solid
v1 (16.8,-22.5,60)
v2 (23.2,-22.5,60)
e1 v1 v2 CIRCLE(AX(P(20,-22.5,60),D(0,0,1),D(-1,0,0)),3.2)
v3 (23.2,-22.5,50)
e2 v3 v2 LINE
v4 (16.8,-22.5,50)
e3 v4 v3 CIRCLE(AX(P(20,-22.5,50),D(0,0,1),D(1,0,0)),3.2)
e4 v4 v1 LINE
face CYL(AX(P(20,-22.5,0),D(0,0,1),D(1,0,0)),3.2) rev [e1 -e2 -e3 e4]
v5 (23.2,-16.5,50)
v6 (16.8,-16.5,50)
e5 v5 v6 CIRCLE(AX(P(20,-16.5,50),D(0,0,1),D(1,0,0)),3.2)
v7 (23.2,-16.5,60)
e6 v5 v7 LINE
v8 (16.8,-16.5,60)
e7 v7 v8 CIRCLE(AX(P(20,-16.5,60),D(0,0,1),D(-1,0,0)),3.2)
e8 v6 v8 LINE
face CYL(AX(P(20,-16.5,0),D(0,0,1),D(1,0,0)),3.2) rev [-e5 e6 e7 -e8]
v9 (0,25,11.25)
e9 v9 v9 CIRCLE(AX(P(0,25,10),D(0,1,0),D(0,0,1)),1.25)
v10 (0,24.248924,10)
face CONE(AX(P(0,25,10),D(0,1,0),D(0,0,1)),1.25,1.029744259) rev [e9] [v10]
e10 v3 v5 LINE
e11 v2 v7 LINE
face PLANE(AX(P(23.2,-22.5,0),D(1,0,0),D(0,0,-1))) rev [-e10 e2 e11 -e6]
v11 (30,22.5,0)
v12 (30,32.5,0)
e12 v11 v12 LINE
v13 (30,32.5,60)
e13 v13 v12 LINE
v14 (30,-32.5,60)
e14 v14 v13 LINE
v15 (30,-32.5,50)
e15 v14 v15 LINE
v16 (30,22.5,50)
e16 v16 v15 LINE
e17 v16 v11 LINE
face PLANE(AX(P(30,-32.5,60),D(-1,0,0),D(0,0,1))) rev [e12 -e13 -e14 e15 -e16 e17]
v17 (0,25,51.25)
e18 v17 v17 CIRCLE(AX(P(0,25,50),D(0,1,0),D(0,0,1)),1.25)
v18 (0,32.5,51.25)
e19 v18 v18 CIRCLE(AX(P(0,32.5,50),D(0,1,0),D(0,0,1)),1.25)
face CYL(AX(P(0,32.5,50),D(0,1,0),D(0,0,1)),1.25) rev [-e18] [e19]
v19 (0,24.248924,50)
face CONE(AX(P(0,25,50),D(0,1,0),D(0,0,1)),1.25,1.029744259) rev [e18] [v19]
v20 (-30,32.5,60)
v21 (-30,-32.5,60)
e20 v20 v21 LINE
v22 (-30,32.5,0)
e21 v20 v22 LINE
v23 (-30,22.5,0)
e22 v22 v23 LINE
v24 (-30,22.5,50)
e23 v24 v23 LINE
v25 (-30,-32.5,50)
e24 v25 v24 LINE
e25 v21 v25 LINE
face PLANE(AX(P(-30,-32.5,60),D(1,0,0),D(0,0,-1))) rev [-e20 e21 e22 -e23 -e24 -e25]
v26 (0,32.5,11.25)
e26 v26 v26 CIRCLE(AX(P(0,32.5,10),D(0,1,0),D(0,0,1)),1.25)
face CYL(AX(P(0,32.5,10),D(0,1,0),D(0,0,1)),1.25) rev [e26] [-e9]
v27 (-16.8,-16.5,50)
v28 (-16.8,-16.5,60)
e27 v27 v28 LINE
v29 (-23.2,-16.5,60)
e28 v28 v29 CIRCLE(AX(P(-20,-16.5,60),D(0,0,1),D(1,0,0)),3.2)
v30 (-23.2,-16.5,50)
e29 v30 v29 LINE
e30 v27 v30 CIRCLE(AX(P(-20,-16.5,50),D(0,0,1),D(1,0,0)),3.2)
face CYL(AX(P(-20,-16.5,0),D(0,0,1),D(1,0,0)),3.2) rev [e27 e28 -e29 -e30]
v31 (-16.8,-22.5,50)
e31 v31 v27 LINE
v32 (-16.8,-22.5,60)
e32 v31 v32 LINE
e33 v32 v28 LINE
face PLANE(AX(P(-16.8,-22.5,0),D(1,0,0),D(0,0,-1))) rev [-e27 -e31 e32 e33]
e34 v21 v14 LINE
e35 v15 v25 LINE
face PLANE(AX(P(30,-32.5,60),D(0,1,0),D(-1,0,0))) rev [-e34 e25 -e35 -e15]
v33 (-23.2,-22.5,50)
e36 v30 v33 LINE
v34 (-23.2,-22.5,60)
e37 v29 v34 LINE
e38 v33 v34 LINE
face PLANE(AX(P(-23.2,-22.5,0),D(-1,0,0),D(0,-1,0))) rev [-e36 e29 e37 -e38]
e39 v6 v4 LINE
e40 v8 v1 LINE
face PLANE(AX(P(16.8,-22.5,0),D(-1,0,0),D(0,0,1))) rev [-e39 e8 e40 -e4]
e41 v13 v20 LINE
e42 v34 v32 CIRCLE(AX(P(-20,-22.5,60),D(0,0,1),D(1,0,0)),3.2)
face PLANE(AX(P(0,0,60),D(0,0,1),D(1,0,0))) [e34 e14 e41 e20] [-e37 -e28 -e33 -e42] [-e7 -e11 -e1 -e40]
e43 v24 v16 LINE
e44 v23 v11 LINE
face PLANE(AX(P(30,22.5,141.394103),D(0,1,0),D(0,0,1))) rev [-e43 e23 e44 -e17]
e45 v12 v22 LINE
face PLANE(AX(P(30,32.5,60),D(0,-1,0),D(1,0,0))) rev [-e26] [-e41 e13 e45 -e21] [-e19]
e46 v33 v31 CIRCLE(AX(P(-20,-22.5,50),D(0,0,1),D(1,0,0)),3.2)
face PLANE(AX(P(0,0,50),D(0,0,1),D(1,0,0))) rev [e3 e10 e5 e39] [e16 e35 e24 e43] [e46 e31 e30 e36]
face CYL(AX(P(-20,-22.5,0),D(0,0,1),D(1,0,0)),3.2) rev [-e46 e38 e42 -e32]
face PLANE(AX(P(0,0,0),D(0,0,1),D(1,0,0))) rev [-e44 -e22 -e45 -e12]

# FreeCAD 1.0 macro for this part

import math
import FreeCAD as App
import Part
import Sketcher
from FreeCAD import Vector

doc = App.newDocument("Part")
params = doc.addObject("Spreadsheet::Sheet", "Params")
for row, (alias, value) in enumerate([
    ("sketch1_width", "60 mm"),
    ("sketch1_height", "65 mm"),
    ("pad1_length", "60 mm"),
    ("sketch2_width", "60 mm"),
    ("sketch2_height", "55 mm"),
    ("pocket1_length", "50 mm"),
    ("sketch3_radius", "3.2 mm"),
    ("sketch3_height", "6 mm"),
    ("sketch4_diameter", "2.5 mm"),
    ("hole_diameter", "2.5 mm"),
    ("hole_depth", "7.5 mm"),
], start=1):
    params.set(f"A{row}", alias)
    params.set(f"B{row}", "=" + value)
    params.setAlias(f"B{row}", alias)

body = doc.addObject("PartDesign::Body", "Body")

# Sketch on XY plane
sketch1 = body.newObject("Sketcher::SketchObject", "Sketch")
sketch1.AttachmentSupport = (doc.getObject("XY_Plane"), [""])
sketch1.MapMode = "FlatFace"
sketch1.addGeometry([
    Part.LineSegment(Vector(-30, 32, 0), Vector(-30, -32, 0)),
    Part.LineSegment(Vector(-30, -32, 0), Vector(30, -32, 0)),
    Part.LineSegment(Vector(30, -32, 0), Vector(30, 32, 0)),
    Part.LineSegment(Vector(30, 32, 0), Vector(-30, 32, 0)),
], False)
sketch1.addConstraint([
    Sketcher.Constraint("Coincident", 0, 2, 1, 1),
    Sketcher.Constraint("Coincident", 1, 2, 2, 1),
    Sketcher.Constraint("Coincident", 2, 2, 3, 1),
    Sketcher.Constraint("Coincident", 3, 2, 0, 1),
    Sketcher.Constraint("Vertical", 0),
    Sketcher.Constraint("Horizontal", 1),
    Sketcher.Constraint("Vertical", 2),
    Sketcher.Constraint("Horizontal", 3),
    Sketcher.Constraint("Symmetric", 0, 2, 2, 2, -1, 1),
    Sketcher.Constraint("DistanceX", 1, 1, 1, 2, 60.0),
    Sketcher.Constraint("DistanceY", 0, 2, 0, 1, 65.0),
])
sketch1.setExpression("Constraints[9]", "Params.sketch1_width")
sketch1.setExpression("Constraints[10]", "Params.sketch1_height")
pad1 = body.newObject("PartDesign::Pad", "Pad")
pad1.Profile = sketch1
pad1.setExpression("Length", "Params.pad1_length")

# Sketch on XY plane
sketch2 = body.newObject("Sketcher::SketchObject", "Sketch001")
sketch2.AttachmentSupport = (doc.getObject("XY_Plane"), [""])
sketch2.MapMode = "FlatFace"
sketch2.addGeometry([
    Part.LineSegment(Vector(30, 22, 0), Vector(30, -32, 0)),
    Part.LineSegment(Vector(30, -32, 0), Vector(-30, -32, 0)),
    Part.LineSegment(Vector(-30, -32, 0), Vector(-30, 22, 0)),
    Part.LineSegment(Vector(-30, 22, 0), Vector(30, 22, 0)),
], False)
sketch2.addConstraint([
    Sketcher.Constraint("Coincident", 0, 2, 1, 1),
    Sketcher.Constraint("Coincident", 1, 2, 2, 1),
    Sketcher.Constraint("Coincident", 2, 2, 3, 1),
    Sketcher.Constraint("Coincident", 3, 2, 0, 1),
    Sketcher.Constraint("Vertical", 0),
    Sketcher.Constraint("Horizontal", 1),
    Sketcher.Constraint("Vertical", 2),
    Sketcher.Constraint("Horizontal", 3),
    Sketcher.Constraint("DistanceX", 1, 2, 1, 1, 60.0),
    Sketcher.Constraint("DistanceY", 0, 2, 0, 1, 55.0),
    Sketcher.Constraint("DistanceX", -1, 1, 0, 2, 30.0),
    Sketcher.Constraint("DistanceY", 0, 2, -1, 1, 32.5),
])
sketch2.setExpression("Constraints[8]", "Params.sketch2_width")
sketch2.setExpression("Constraints[9]", "Params.sketch2_height")
pocket1 = body.newObject("PartDesign::Pocket", "Pocket")
pocket1.Profile = sketch2
pocket1.setExpression("Length", "Params.pocket1_length")
pocket1.Reversed = True

# Sketch on XY plane
sketch3 = body.newObject("Sketcher::SketchObject", "Sketch002")
sketch3.AttachmentSupport = (doc.getObject("XY_Plane"), [""])
sketch3.MapMode = "FlatFace"
sketch3.AttachmentOffset = App.Placement(Vector(0, 0, 60), App.Rotation())
sketch3.addGeometry([
    Part.LineSegment(Vector(-23.2, -16.5, 0), Vector(-23.2, -22.5, 0)),  # 0
    Part.ArcOfCircle(Part.Circle(Vector(-20, -22.5, 0), Vector(0, 0, 1), 3.2), math.radians(180), math.radians(360)),  # 1
    Part.LineSegment(Vector(-16.8, -22.5, 0), Vector(-16.8, -16.5, 0)),  # 2
    Part.ArcOfCircle(Part.Circle(Vector(-20, -16.5, 0), Vector(0, 0, 1), 3.2), math.radians(0), math.radians(180)),  # 3
    Part.LineSegment(Vector(23.2, -22.5, 0), Vector(23.2, -16.5, 0)),  # 4
    Part.ArcOfCircle(Part.Circle(Vector(20, -16.5, 0), Vector(0, 0, 1), 3.2), math.radians(0), math.radians(180)),  # 5
    Part.LineSegment(Vector(16.8, -16.5, 0), Vector(16.8, -22.5, 0)),  # 6
    Part.ArcOfCircle(Part.Circle(Vector(20, -22.5, 0), Vector(0, 0, 1), 3.2), math.radians(180), math.radians(360)),  # 7
], False)
sketch3.addConstraint([
    Sketcher.Constraint("Tangent", 0, 2, 1, 1),
    Sketcher.Constraint("Tangent", 1, 2, 2, 1),
    Sketcher.Constraint("Tangent", 2, 2, 3, 1),
    Sketcher.Constraint("Tangent", 3, 2, 0, 1),
    Sketcher.Constraint("Tangent", 4, 2, 5, 1),
    Sketcher.Constraint("Tangent", 5, 2, 6, 1),
    Sketcher.Constraint("Tangent", 6, 2, 7, 1),
    Sketcher.Constraint("Tangent", 7, 2, 4, 1),
    Sketcher.Constraint("Vertical", 0),
    Sketcher.Constraint("Vertical", 2),
    Sketcher.Constraint("Vertical", 4),
    Sketcher.Constraint("Vertical", 6),
    Sketcher.Constraint("Equal", 3, 5),
    Sketcher.Constraint("Symmetric", 3, 3, 5, 3, -2),
    Sketcher.Constraint("Horizontal", 1, 3, 7, 3),
    Sketcher.Constraint("Radius", 1, 3.2),
    Sketcher.Constraint("DistanceY", 0, 2, 0, 1, 6.0),
    Sketcher.Constraint("DistanceX", 1, 3, -1, 1, 20.0),
    Sketcher.Constraint("DistanceY", 1, 3, -1, 1, 22.5),
])
sketch3.setExpression("Constraints[15]", "Params.sketch3_radius")
sketch3.setExpression("Constraints[16]", "Params.sketch3_height")
pocket2 = body.newObject("PartDesign::Pocket", "Pocket001")
pocket2.Profile = sketch3
pocket2.Type = "ThroughAll"

# Sketch on XZ plane
sketch4 = body.newObject("Sketcher::SketchObject", "Sketch003")
sketch4.AttachmentSupport = (doc.getObject("XZ_Plane"), [""])
sketch4.MapMode = "FlatFace"
sketch4.AttachmentOffset = App.Placement(Vector(0, 0, -32.5), App.Rotation())
sketch4.addGeometry([
    Part.Circle(Vector(0, 10, 0), Vector(0, 0, 1), 1.2),
    Part.Circle(Vector(0, 50, 0), Vector(0, 0, 1), 1.2),
], False)
sketch4.addConstraint([
    Sketcher.Constraint("Equal", 0, 1),
    Sketcher.Constraint("PointOnObject", 0, 3, -2),
    Sketcher.Constraint("PointOnObject", 1, 3, -2),
    Sketcher.Constraint("Diameter", 0, 2.5),
    Sketcher.Constraint("DistanceY", -1, 1, 0, 3, 10.0),
    Sketcher.Constraint("DistanceY", -1, 1, 1, 3, 50.0),
])
sketch4.setExpression("Constraints[3]", "Params.sketch4_diameter")
doc.recompute()
hole = body.newObject("PartDesign::Hole", "Hole")
hole.Profile = sketch4
hole.ThreadType = "None"
hole.setExpression("Diameter", "Params.hole_diameter")
hole.DepthType = "Dimension"
hole.setExpression("Depth", "Params.hole_depth")
hole.DrillPoint = "Angled"
hole.DrillPointAngle = 118
hole.Reversed = True

doc.recompute()
